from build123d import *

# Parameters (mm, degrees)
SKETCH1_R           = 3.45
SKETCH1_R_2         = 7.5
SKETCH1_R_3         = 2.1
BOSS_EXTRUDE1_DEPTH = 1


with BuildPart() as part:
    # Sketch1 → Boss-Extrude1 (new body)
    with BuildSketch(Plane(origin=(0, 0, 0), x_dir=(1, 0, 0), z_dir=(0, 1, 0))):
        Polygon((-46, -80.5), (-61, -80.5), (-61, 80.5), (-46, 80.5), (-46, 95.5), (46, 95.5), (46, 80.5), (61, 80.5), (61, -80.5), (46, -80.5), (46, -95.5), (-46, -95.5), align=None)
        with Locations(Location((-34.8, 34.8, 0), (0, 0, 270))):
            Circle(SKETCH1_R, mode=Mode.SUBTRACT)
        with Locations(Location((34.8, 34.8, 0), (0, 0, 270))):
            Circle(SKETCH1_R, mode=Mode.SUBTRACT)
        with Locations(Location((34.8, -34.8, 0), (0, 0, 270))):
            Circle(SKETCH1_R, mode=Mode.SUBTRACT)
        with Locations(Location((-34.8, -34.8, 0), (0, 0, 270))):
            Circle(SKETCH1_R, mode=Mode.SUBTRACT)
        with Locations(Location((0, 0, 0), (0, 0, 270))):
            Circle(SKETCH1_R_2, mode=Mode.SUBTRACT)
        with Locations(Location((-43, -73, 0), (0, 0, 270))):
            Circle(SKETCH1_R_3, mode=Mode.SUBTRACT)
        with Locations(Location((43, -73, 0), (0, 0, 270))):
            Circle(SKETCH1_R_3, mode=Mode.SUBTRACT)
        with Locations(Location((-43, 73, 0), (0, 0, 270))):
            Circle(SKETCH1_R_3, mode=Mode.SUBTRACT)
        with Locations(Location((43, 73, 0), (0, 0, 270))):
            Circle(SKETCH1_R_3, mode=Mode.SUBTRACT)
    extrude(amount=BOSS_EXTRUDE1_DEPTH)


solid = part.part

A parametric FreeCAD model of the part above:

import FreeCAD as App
import Part
import Sketcher
from FreeCAD import Vector


def add_polygon(sketch, points):
    """Adds a closed chain of lines whose ends are joined by coincident constraints."""
    first, n = sketch.GeometryCount, len(points)
    for a, b in zip(points, points[1:] + points[:1]):
        sketch.addGeometry(Part.LineSegment(App.Vector(*a, 0), App.Vector(*b, 0)), False)
    for i in range(n):
        sketch.addConstraint(Sketcher.Constraint("Coincident", first + i, 2, first + (i + 1) % n, 1))

doc = App.newDocument("Part")
body = doc.addObject("PartDesign::Body", "Body")

sketch1 = body.newObject("Sketcher::SketchObject", "Sketch")
sketch1.AttachmentSupport = (doc.getObject("XZ_Plane"), [""])
sketch1.MapMode = "FlatFace"
add_polygon(sketch1, [(-61, 80.5), (-46, 80.5), (-46, 95.5), (46, 95.5), (46, 80.5), (61, 80.5), (61, -80.5), (46, -80.5), (46, -95.5), (-46, -95.5), (-46, -80.5), (-61, -80.5)])
sketch1.addGeometry(Part.Circle(Vector(43, 73, 0), Vector(0, 0, 1), 2.1), False)
sketch1.addGeometry(Part.Circle(Vector(34.8, 34.8, 0), Vector(0, 0, 1), 3.5), False)
sketch1.addGeometry(Part.Circle(Vector(-43, 73, 0), Vector(0, 0, 1), 2.1), False)
sketch1.addGeometry(Part.Circle(Vector(-34.8, 34.8, 0), Vector(0, 0, 1), 3.5), False)
sketch1.addGeometry(Part.Circle(Vector(34.8, -34.8, 0), Vector(0, 0, 1), 3.5), False)
sketch1.addGeometry(Part.Circle(Vector(43, -73, 0), Vector(0, 0, 1), 2.1), False)
sketch1.addGeometry(Part.Circle(Vector(0, 0, 0), Vector(0, 0, 1), 7.5), False)
sketch1.addGeometry(Part.Circle(Vector(-34.8, -34.8, 0), Vector(0, 0, 1), 3.5), False)
sketch1.addGeometry(Part.Circle(Vector(-43, -73, 0), Vector(0, 0, 1), 2.1), False)
sketch1.addConstraint([
    Sketcher.Constraint("Horizontal", 0),
    Sketcher.Constraint("Vertical", 1),
    Sketcher.Constraint("Horizontal", 2),
    Sketcher.Constraint("Vertical", 3),
    Sketcher.Constraint("Horizontal", 4),
    Sketcher.Constraint("Vertical", 5),
    Sketcher.Constraint("Horizontal", 6),
    Sketcher.Constraint("Vertical", 7),
    Sketcher.Constraint("Horizontal", 8),
    Sketcher.Constraint("Vertical", 9),
    Sketcher.Constraint("Horizontal", 10),
    Sketcher.Constraint("Vertical", 11),
    Sketcher.Constraint("Coincident", 18, 3, -1, 1),
    Sketcher.Constraint("Equal", 12, 14),
    Sketcher.Constraint("Equal", 13, 15),
    Sketcher.Constraint("Equal", 15, 16),
    Sketcher.Constraint("Equal", 14, 17),
    Sketcher.Constraint("Equal", 16, 19),
    Sketcher.Constraint("Equal", 17, 20),
    Sketcher.Constraint("Symmetric", 15, 3, 16, 3, -1, 1),
    Sketcher.Constraint("Symmetric", 14, 3, 17, 3, -1, 1),
    Sketcher.Constraint("Symmetric", 13, 3, 19, 3, -1, 1),
    Sketcher.Constraint("Symmetric", 12, 3, 20, 3, -1, 1),
    Sketcher.Constraint("Symmetric", 0, 2, 6, 2, -1, 1),
    Sketcher.Constraint("Symmetric", 2, 2, 8, 2, -1, 1),
    Sketcher.Constraint("Symmetric", 4, 2, 10, 2, -1, 1),
    Sketcher.Constraint("Symmetric", 12, 3, 14, 3, -2),
    Sketcher.Constraint("Symmetric", 13, 3, 15, 3, -2),
    Sketcher.Constraint("Symmetric", 0, 2, 3, 2, -2),
    Sketcher.Constraint("Equal", 10, 1),
    Sketcher.Constraint("Diameter", 18, 15.0),
    Sketcher.Constraint("Diameter", 12, 4.2),
    Sketcher.Constraint("Diameter", 13, 6.9),
    Sketcher.Constraint("DistanceX", 0, 1, 0, 2, 15.0),
    Sketcher.Constraint("DistanceX", 2, 1, 2, 2, 92.0),
    Sketcher.Constraint("DistanceY", 5, 2, 5, 1, 161.0),
    Sketcher.Constraint("DistanceX", -1, 1, 12, 3, 43.0),
    Sketcher.Constraint("DistanceY", -1, 1, 12, 3, 73.0),
    Sketcher.Constraint("DistanceX", -1, 1, 13, 3, 34.8),
    Sketcher.Constraint("DistanceY", -1, 1, 13, 3, 34.8),
])
pad1 = body.newObject("PartDesign::Pad", "Pad")
pad1.Profile = sketch1
pad1.Length = 1
pad1.Reversed = True

doc.recompute()
